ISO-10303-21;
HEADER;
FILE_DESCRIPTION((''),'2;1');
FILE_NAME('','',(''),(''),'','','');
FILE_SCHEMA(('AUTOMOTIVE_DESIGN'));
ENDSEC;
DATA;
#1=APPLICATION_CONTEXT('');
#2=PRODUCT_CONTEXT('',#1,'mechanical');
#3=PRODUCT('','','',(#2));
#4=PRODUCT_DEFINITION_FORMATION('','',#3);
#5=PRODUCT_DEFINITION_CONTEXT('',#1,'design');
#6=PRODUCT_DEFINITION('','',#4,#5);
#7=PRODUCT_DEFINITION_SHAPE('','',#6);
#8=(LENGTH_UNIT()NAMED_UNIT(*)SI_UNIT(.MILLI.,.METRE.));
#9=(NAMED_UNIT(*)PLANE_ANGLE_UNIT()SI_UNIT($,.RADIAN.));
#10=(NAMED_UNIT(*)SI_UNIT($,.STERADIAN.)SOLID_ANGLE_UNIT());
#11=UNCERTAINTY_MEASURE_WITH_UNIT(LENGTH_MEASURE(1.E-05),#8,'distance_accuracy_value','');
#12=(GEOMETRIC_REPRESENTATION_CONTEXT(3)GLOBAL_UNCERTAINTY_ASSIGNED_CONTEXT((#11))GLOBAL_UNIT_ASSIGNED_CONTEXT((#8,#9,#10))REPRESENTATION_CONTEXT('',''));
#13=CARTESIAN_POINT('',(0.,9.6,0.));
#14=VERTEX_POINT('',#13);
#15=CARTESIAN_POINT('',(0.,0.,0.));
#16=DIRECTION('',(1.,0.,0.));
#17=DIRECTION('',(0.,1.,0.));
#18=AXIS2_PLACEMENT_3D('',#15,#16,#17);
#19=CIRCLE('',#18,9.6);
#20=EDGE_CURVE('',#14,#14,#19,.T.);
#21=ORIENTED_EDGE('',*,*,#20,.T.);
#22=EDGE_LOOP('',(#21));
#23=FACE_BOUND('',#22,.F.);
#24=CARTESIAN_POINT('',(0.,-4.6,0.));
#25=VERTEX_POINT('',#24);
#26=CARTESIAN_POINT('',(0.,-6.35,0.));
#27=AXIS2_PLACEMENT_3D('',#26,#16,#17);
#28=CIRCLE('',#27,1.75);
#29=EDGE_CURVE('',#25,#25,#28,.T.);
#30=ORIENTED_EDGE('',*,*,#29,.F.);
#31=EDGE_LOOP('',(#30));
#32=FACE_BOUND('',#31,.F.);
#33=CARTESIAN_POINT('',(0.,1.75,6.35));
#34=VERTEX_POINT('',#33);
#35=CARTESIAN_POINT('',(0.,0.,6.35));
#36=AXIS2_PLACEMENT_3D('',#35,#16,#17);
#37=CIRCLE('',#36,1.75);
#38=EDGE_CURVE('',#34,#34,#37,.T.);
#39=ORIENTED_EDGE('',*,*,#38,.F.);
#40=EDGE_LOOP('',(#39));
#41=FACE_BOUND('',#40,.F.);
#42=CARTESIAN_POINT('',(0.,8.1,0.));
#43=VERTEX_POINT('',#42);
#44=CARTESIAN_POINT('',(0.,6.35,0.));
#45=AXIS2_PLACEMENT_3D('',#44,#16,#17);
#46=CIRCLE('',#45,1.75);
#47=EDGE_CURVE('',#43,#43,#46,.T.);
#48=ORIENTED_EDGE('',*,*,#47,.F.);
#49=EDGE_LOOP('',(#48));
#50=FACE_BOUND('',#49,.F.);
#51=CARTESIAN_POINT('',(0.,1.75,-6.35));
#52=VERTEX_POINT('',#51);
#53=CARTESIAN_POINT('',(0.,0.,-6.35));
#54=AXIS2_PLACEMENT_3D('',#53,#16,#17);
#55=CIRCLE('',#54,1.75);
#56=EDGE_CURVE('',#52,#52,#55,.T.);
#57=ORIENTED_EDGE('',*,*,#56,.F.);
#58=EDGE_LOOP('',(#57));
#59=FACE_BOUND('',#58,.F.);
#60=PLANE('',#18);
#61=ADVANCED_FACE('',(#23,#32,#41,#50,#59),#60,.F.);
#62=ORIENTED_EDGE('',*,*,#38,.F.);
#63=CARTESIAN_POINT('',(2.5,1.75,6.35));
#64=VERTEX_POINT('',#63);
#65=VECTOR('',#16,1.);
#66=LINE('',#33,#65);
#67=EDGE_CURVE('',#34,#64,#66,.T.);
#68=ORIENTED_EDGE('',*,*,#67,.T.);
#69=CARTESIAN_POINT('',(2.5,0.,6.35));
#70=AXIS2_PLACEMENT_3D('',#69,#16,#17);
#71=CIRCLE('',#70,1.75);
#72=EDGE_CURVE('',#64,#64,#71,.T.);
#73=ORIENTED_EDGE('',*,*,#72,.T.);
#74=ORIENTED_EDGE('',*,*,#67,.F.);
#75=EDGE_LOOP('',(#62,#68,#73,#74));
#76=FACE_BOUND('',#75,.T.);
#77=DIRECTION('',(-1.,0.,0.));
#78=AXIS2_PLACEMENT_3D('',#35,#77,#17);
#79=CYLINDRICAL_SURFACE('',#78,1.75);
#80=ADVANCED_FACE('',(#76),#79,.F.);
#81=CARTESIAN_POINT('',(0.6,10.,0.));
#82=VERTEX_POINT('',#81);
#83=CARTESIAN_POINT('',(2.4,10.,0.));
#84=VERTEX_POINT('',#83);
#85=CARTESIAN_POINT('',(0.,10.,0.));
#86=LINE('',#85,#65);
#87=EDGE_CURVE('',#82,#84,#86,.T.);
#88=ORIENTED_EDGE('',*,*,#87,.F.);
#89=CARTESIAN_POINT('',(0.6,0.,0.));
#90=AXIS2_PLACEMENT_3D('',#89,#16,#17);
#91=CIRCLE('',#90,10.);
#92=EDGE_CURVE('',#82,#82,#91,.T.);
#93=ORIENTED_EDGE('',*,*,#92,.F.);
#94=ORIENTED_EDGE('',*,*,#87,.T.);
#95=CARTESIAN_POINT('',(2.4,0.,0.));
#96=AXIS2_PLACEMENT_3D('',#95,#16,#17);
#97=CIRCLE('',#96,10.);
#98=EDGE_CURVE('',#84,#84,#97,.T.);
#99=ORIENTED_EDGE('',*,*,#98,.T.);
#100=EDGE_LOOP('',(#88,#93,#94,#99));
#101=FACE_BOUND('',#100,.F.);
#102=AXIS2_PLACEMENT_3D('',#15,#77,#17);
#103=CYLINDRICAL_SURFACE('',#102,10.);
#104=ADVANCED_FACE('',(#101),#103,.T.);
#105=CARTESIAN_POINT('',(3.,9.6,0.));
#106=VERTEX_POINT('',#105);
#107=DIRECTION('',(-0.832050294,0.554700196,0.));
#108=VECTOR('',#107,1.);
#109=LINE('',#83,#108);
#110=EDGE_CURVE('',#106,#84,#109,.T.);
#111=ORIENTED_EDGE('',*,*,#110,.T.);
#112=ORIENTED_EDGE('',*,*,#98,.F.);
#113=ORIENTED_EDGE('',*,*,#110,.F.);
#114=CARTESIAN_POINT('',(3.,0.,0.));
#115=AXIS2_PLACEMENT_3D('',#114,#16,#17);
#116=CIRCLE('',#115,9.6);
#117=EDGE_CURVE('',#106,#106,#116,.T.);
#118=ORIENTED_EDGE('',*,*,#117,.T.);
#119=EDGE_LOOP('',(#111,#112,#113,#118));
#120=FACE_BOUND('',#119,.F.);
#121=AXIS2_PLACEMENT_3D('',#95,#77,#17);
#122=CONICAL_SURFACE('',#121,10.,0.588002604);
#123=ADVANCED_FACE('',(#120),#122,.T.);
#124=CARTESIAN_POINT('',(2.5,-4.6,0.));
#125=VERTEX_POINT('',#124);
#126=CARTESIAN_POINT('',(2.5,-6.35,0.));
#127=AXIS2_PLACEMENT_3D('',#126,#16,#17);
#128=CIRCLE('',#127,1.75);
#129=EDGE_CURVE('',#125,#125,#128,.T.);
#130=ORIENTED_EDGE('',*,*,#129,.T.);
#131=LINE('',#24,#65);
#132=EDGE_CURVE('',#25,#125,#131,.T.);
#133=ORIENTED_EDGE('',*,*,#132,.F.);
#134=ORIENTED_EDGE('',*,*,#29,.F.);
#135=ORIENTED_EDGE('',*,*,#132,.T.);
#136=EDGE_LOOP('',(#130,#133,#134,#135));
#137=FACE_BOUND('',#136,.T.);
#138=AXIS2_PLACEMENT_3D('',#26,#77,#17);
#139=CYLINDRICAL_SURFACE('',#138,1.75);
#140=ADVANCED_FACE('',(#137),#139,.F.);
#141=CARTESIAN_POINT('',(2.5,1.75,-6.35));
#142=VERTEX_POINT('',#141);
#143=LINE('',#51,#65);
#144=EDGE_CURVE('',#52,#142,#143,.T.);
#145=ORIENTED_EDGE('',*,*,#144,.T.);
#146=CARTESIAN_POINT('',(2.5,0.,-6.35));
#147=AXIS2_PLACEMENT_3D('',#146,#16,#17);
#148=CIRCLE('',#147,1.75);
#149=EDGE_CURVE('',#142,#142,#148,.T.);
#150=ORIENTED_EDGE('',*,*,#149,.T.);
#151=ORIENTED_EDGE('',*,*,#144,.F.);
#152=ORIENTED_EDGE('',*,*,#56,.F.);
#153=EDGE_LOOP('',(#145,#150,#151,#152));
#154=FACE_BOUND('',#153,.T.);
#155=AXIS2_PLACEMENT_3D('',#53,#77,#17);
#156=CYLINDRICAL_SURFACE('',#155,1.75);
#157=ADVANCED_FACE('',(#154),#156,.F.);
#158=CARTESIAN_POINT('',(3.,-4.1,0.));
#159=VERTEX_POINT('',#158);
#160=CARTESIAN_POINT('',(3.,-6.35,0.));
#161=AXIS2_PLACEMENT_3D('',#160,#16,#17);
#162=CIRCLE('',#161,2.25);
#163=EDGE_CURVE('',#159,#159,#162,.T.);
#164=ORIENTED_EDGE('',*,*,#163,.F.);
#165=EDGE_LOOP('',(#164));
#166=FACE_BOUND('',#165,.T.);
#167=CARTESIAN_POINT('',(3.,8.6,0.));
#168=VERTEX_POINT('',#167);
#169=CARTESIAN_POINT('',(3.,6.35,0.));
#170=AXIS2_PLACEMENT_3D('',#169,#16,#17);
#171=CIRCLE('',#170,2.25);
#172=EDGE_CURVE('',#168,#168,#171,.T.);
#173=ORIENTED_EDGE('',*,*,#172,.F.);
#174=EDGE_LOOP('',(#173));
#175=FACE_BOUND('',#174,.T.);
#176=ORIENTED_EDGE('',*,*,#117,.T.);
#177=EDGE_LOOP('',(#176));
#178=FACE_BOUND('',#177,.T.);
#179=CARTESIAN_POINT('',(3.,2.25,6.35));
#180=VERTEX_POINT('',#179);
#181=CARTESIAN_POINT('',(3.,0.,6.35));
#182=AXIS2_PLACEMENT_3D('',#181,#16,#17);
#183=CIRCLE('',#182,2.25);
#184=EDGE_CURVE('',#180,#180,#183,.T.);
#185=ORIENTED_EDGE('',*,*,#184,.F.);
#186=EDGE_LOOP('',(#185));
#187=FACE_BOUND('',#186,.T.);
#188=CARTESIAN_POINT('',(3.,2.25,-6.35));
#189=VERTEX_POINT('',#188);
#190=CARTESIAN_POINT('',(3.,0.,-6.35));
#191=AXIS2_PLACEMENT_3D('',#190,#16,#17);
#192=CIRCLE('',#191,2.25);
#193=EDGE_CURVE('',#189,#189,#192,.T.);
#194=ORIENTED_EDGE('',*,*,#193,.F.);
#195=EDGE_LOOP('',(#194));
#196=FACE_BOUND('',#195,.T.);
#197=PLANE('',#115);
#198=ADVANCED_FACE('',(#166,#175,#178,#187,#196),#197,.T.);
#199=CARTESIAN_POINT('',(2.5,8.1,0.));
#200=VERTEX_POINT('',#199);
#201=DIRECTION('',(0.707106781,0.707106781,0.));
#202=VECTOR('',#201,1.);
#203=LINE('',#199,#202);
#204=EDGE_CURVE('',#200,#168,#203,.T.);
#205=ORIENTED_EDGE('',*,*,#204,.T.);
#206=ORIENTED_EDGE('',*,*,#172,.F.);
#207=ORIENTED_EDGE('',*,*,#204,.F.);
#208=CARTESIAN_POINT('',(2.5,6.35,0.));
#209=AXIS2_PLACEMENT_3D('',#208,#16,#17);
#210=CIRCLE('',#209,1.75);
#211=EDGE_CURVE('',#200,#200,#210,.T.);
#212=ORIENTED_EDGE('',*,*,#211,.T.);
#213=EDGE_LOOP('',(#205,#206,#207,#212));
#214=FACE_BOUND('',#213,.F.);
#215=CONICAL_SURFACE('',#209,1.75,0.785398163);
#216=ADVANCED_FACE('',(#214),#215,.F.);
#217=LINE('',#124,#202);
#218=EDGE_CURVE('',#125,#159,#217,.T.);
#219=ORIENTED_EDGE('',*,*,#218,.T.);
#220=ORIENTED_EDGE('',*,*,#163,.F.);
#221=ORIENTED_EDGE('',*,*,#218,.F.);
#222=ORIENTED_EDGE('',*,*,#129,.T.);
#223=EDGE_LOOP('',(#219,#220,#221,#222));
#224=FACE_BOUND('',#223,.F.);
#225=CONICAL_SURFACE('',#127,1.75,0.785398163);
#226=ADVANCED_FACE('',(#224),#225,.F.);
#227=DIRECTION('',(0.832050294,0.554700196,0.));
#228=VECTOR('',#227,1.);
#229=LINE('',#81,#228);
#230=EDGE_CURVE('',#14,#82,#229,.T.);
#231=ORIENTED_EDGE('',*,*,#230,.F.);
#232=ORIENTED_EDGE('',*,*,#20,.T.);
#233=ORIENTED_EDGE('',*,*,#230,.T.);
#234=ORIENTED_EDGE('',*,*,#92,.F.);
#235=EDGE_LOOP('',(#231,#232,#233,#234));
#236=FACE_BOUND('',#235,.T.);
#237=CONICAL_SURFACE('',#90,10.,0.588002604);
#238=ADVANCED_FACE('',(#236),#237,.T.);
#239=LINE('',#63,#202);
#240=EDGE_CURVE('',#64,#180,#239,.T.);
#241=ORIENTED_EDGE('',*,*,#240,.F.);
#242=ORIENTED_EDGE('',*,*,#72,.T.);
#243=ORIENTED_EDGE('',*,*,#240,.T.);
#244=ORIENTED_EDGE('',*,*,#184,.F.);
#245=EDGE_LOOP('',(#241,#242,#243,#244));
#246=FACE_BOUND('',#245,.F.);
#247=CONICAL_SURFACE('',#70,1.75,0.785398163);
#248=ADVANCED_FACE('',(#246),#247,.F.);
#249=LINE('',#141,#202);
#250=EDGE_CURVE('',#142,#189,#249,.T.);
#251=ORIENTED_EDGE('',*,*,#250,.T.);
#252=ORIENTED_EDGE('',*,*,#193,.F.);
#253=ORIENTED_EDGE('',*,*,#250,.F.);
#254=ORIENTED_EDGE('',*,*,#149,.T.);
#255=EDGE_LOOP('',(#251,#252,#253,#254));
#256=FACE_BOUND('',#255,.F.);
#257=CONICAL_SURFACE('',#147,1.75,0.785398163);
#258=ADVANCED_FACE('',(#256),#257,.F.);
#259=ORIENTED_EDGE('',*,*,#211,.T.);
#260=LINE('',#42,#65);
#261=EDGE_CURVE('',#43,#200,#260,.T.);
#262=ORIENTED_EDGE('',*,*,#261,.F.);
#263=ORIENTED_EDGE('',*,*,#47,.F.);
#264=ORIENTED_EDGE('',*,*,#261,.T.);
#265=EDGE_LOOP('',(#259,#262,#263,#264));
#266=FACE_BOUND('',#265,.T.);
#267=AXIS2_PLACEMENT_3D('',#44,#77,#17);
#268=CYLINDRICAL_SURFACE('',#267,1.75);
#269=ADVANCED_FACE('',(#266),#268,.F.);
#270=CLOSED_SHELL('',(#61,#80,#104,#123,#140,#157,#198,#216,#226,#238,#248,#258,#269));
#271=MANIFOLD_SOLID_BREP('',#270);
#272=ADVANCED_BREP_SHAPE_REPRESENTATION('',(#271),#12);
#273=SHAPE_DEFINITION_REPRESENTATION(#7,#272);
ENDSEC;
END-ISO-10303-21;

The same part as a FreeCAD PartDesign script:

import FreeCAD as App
import Part
import Sketcher
Q = App.Units.Quantity


def edges_at(feature, points):
    """Names of the edges that pass closest to the given points."""
    edges = feature.Shape.Edges
    near = lambda p: min(range(len(edges)), key=lambda i: edges[i].distToShape(Part.Vertex(*p))[0])
    return sorted({f"Edge{near(p) + 1}" for p in points})

doc = App.newDocument("Part")
body = doc.addObject("PartDesign::Body", "Body")

# Sketch on YZ plane
sketch1 = doc.addObject("Sketcher::SketchObject", "Sketch")
body.addObject(sketch1)
sketch1.AttachmentSupport = (doc.YZ_Plane, [""])
sketch1.MapMode = "FlatFace"
sketch1.addGeometry(Part.Circle(App.Vector(0, 0, 0), App.Vector(0, 0, 1), 10), False)
sketch1.addGeometry(Part.Circle(App.Vector(0, -6.3, 0), App.Vector(0, 0, 1), 1.8), False)
sketch1.addGeometry(Part.Circle(App.Vector(-6.3, 0, 0), App.Vector(0, 0, 1), 1.8), False)
sketch1.addGeometry(Part.Circle(App.Vector(0, 6.3, 0), App.Vector(0, 0, 1), 1.8), False)
sketch1.addGeometry(Part.Circle(App.Vector(6.3, 0, 0), App.Vector(0, 0, 1), 1.8), False)
sketch1.addConstraint(Sketcher.Constraint("Coincident", 0, 3, -1, 1))
sketch1.addConstraint(Sketcher.Constraint("Equal", 1, 2))
sketch1.addConstraint(Sketcher.Constraint("Equal", 2, 3))
sketch1.addConstraint(Sketcher.Constraint("Equal", 3, 4))
sketch1.addConstraint(Sketcher.Constraint("Symmetric", 1, 3, 3, 3, -1, 1))
sketch1.addConstraint(Sketcher.Constraint("Symmetric", 2, 3, 4, 3, -1, 1))
sketch1.addConstraint(Sketcher.Constraint("PointOnObject", 1, 3, -2))
sketch1.addConstraint(Sketcher.Constraint("PointOnObject", 2, 3, -1))
sketch1.addConstraint(Sketcher.Constraint("Diameter", 0, Q("20 mm")))
sketch1.addConstraint(Sketcher.Constraint("Diameter", 1, Q("3.5 mm")))
sketch1.addConstraint(Sketcher.Constraint("DistanceY", 1, 3, 3, 3, Q("12.7 mm")))
sketch1.addConstraint(Sketcher.Constraint("DistanceX", 2, 3, 4, 3, Q("12.7 mm")))
pad1 = doc.addObject("PartDesign::Pad", "Pad")
body.addObject(pad1)
pad1.Profile = sketch1
pad1.Length = 3
doc.recompute()

chamfer = doc.addObject("PartDesign::Chamfer", "Chamfer")
body.addObject(chamfer)
chamfer.Base = (pad1, edges_at(pad1, [
    (3, -8.1, 0),
    (3, -1.75, 6.35),
    (3, 4.6, 0),
    (3, -1.75, -6.35),
]))
chamfer.Size = 0.5
doc.recompute()

chamfer2 = doc.addObject("PartDesign::Chamfer", "Chamfer001")
body.addObject(chamfer2)
chamfer2.Base = (chamfer, edges_at(chamfer, [(3, -10, 0), (0, -10, 0)]))
chamfer2.ChamferType = "Two distances"
chamfer2.Size = 0.4
chamfer2.Size2 = 0.6

doc.recompute()
